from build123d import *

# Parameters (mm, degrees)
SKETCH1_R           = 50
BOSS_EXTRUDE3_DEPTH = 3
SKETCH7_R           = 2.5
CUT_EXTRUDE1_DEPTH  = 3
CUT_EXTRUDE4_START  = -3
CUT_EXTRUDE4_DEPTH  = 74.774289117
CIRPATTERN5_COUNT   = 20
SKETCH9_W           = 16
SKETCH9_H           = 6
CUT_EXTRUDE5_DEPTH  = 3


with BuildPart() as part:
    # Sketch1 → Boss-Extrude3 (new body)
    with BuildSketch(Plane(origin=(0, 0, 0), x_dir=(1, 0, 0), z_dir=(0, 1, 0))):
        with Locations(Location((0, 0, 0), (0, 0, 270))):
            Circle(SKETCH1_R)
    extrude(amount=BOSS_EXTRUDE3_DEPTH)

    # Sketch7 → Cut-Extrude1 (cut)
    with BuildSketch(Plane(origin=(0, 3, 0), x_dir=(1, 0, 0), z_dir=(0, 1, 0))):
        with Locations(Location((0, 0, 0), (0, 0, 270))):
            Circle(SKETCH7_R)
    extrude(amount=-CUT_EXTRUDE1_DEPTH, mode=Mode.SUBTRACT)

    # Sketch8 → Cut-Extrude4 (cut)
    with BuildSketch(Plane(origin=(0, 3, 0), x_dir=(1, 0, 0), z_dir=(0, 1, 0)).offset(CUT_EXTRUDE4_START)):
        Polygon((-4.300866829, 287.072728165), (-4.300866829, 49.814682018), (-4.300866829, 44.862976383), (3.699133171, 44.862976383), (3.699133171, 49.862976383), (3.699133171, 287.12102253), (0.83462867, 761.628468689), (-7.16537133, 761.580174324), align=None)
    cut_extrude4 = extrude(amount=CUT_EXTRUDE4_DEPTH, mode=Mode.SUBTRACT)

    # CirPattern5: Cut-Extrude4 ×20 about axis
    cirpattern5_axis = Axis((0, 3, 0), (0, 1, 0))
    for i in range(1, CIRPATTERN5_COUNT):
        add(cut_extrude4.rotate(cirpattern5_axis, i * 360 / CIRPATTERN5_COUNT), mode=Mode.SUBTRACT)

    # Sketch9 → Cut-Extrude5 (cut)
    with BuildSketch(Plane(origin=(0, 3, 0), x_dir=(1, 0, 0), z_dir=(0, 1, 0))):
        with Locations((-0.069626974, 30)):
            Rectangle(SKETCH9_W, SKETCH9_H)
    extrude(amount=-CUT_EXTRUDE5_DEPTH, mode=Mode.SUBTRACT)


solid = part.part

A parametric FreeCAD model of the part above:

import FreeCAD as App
import Part
import Sketcher

V = App.Vector

doc = App.newDocument("Part")
body = doc.addObject("PartDesign::Body", "Body")

sketch1 = body.newObject("Sketcher::SketchObject", "Sketch")
sketch1.AttachmentSupport = (doc.getObject("XZ_Plane"), [""])
sketch1.MapMode = "FlatFace"
sketch1.addGeometry(Part.Circle(V(0, 0, 0), V(0, 0, 1), 50), False)
sketch1.addConstraint([
    Sketcher.Constraint("Coincident", 0, 3, -1, 1),
    Sketcher.Constraint("Diameter", 0, 100.0),
])
pad1 = body.newObject("PartDesign::Pad", "Pad")
pad1.Profile = sketch1
pad1.Length = 3
pad1.Reversed = True

sketch2 = body.newObject("Sketcher::SketchObject", "Sketch001")
sketch2.AttachmentSupport = (doc.getObject("XZ_Plane"), [""])
sketch2.MapMode = "FlatFace"
sketch2.AttachmentOffset = App.Placement(V(0, 0, -3), App.Rotation())
sketch2.addGeometry(Part.Circle(V(0, 0, 0), V(0, 0, 1), 2.5), False)
sketch2.addConstraint([
    Sketcher.Constraint("Coincident", 0, 3, -1, 1),
    Sketcher.Constraint("Diameter", 0, 5.0),
])
pocket1 = body.newObject("PartDesign::Pocket", "Pocket")
pocket1.Profile = sketch2
pocket1.Length = 3
pocket1.Reversed = True

sketch3 = body.newObject("Sketcher::SketchObject", "Sketch002")
sketch3.AttachmentSupport = (doc.getObject("XZ_Plane"), [""])
sketch3.MapMode = "FlatFace"
sketch3.addGeometry([
    Part.LineSegment(V(-4.300867, -287.072728, 0), V(-4.300867, -44.862976, 0)),
    Part.LineSegment(V(-4.300867, -44.862976, 0), V(3.699133, -44.862976, 0)),
    Part.LineSegment(V(3.699133, -44.862976, 0), V(3.699133, -287.121023, 0)),
    Part.LineSegment(V(3.699133, -287.121023, 0), V(0.834629, -761.628469, 0)),
    Part.LineSegment(V(0.834629, -761.628469, 0), V(-7.165371, -761.580174, 0)),
    Part.LineSegment(V(-7.165371, -761.580174, 0), V(-4.300867, -287.072728, 0)),
], False)
sketch3.addConstraint([
    Sketcher.Constraint("Coincident", 0, 2, 1, 1),
    Sketcher.Constraint("Coincident", 1, 2, 2, 1),
    Sketcher.Constraint("Coincident", 2, 2, 3, 1),
    Sketcher.Constraint("Coincident", 3, 2, 4, 1),
    Sketcher.Constraint("Coincident", 4, 2, 5, 1),
    Sketcher.Constraint("Coincident", 5, 2, 0, 1),
    Sketcher.Constraint("Vertical", 0),
    Sketcher.Constraint("Horizontal", 1),
    Sketcher.Constraint("Vertical", 2),
    Sketcher.Constraint("DistanceX", 1, 1, 1, 2, 8.0),
    Sketcher.Constraint("DistanceX", 4, 2, 3, 2, 8.0),
    Sketcher.Constraint("DistanceY", 0, 1, 0, 2, 242.209752),
    Sketcher.Constraint("DistanceY", 2, 2, 2, 1, 242.258046),
    Sketcher.Constraint("DistanceX", -1, 1, 3, 2, 0.834629),
    Sketcher.Constraint("DistanceY", 3, 2, -1, 1, 761.628469),
    Sketcher.Constraint("DistanceY", 5, 2, -1, 1, 287.072728),
    Sketcher.Constraint("DistanceY", 4, 2, 2, 2, 474.459152),
    Sketcher.Constraint("DistanceX", 0, 2, -1, 1, 4.300867),
])
pocket2 = body.newObject("PartDesign::Pocket", "Pocket001")
pocket2.Profile = sketch3
pocket2.Length = 74.774289
doc.recompute()

polarpattern = body.newObject("PartDesign::PolarPattern", "PolarPattern")
polarpattern.Originals = [pocket2]
polarpattern.Axis = (doc.getObject("Y_Axis"), [""])
polarpattern.Angle = 360
polarpattern.Occurrences = 20
body.Tip = polarpattern

sketch4 = body.newObject("Sketcher::SketchObject", "Sketch003")
sketch4.AttachmentSupport = (doc.getObject("XZ_Plane"), [""])
sketch4.MapMode = "FlatFace"
sketch4.AttachmentOffset = App.Placement(V(0, 0, -3), App.Rotation())
sketch4.addGeometry([
    Part.LineSegment(V(-8.069627, -33, 0), V(-8.069627, -27, 0)),
    Part.LineSegment(V(-8.069627, -27, 0), V(7.930373, -27, 0)),
    Part.LineSegment(V(7.930373, -27, 0), V(7.930373, -33, 0)),
    Part.LineSegment(V(7.930373, -33, 0), V(-8.069627, -33, 0)),
], False)
sketch4.addConstraint([
    Sketcher.Constraint("Coincident", 0, 2, 1, 1),
    Sketcher.Constraint("Coincident", 1, 2, 2, 1),
    Sketcher.Constraint("Coincident", 2, 2, 3, 1),
    Sketcher.Constraint("Coincident", 3, 2, 0, 1),
    Sketcher.Constraint("Vertical", 0),
    Sketcher.Constraint("Horizontal", 1),
    Sketcher.Constraint("Vertical", 2),
    Sketcher.Constraint("Horizontal", 3),
    Sketcher.Constraint("DistanceX", 1, 1, 1, 2, 16.0),
    Sketcher.Constraint("DistanceY", 0, 1, 0, 2, 6.0),
    Sketcher.Constraint("DistanceY", 0, 2, -1, 1, 27.0),
    Sketcher.Constraint("DistanceX", 0, 2, -1, 1, 8.069627),
])
pocket3 = body.newObject("PartDesign::Pocket", "Pocket002")
pocket3.Profile = sketch4
pocket3.Length = 3
pocket3.Reversed = True

doc.recompute()
